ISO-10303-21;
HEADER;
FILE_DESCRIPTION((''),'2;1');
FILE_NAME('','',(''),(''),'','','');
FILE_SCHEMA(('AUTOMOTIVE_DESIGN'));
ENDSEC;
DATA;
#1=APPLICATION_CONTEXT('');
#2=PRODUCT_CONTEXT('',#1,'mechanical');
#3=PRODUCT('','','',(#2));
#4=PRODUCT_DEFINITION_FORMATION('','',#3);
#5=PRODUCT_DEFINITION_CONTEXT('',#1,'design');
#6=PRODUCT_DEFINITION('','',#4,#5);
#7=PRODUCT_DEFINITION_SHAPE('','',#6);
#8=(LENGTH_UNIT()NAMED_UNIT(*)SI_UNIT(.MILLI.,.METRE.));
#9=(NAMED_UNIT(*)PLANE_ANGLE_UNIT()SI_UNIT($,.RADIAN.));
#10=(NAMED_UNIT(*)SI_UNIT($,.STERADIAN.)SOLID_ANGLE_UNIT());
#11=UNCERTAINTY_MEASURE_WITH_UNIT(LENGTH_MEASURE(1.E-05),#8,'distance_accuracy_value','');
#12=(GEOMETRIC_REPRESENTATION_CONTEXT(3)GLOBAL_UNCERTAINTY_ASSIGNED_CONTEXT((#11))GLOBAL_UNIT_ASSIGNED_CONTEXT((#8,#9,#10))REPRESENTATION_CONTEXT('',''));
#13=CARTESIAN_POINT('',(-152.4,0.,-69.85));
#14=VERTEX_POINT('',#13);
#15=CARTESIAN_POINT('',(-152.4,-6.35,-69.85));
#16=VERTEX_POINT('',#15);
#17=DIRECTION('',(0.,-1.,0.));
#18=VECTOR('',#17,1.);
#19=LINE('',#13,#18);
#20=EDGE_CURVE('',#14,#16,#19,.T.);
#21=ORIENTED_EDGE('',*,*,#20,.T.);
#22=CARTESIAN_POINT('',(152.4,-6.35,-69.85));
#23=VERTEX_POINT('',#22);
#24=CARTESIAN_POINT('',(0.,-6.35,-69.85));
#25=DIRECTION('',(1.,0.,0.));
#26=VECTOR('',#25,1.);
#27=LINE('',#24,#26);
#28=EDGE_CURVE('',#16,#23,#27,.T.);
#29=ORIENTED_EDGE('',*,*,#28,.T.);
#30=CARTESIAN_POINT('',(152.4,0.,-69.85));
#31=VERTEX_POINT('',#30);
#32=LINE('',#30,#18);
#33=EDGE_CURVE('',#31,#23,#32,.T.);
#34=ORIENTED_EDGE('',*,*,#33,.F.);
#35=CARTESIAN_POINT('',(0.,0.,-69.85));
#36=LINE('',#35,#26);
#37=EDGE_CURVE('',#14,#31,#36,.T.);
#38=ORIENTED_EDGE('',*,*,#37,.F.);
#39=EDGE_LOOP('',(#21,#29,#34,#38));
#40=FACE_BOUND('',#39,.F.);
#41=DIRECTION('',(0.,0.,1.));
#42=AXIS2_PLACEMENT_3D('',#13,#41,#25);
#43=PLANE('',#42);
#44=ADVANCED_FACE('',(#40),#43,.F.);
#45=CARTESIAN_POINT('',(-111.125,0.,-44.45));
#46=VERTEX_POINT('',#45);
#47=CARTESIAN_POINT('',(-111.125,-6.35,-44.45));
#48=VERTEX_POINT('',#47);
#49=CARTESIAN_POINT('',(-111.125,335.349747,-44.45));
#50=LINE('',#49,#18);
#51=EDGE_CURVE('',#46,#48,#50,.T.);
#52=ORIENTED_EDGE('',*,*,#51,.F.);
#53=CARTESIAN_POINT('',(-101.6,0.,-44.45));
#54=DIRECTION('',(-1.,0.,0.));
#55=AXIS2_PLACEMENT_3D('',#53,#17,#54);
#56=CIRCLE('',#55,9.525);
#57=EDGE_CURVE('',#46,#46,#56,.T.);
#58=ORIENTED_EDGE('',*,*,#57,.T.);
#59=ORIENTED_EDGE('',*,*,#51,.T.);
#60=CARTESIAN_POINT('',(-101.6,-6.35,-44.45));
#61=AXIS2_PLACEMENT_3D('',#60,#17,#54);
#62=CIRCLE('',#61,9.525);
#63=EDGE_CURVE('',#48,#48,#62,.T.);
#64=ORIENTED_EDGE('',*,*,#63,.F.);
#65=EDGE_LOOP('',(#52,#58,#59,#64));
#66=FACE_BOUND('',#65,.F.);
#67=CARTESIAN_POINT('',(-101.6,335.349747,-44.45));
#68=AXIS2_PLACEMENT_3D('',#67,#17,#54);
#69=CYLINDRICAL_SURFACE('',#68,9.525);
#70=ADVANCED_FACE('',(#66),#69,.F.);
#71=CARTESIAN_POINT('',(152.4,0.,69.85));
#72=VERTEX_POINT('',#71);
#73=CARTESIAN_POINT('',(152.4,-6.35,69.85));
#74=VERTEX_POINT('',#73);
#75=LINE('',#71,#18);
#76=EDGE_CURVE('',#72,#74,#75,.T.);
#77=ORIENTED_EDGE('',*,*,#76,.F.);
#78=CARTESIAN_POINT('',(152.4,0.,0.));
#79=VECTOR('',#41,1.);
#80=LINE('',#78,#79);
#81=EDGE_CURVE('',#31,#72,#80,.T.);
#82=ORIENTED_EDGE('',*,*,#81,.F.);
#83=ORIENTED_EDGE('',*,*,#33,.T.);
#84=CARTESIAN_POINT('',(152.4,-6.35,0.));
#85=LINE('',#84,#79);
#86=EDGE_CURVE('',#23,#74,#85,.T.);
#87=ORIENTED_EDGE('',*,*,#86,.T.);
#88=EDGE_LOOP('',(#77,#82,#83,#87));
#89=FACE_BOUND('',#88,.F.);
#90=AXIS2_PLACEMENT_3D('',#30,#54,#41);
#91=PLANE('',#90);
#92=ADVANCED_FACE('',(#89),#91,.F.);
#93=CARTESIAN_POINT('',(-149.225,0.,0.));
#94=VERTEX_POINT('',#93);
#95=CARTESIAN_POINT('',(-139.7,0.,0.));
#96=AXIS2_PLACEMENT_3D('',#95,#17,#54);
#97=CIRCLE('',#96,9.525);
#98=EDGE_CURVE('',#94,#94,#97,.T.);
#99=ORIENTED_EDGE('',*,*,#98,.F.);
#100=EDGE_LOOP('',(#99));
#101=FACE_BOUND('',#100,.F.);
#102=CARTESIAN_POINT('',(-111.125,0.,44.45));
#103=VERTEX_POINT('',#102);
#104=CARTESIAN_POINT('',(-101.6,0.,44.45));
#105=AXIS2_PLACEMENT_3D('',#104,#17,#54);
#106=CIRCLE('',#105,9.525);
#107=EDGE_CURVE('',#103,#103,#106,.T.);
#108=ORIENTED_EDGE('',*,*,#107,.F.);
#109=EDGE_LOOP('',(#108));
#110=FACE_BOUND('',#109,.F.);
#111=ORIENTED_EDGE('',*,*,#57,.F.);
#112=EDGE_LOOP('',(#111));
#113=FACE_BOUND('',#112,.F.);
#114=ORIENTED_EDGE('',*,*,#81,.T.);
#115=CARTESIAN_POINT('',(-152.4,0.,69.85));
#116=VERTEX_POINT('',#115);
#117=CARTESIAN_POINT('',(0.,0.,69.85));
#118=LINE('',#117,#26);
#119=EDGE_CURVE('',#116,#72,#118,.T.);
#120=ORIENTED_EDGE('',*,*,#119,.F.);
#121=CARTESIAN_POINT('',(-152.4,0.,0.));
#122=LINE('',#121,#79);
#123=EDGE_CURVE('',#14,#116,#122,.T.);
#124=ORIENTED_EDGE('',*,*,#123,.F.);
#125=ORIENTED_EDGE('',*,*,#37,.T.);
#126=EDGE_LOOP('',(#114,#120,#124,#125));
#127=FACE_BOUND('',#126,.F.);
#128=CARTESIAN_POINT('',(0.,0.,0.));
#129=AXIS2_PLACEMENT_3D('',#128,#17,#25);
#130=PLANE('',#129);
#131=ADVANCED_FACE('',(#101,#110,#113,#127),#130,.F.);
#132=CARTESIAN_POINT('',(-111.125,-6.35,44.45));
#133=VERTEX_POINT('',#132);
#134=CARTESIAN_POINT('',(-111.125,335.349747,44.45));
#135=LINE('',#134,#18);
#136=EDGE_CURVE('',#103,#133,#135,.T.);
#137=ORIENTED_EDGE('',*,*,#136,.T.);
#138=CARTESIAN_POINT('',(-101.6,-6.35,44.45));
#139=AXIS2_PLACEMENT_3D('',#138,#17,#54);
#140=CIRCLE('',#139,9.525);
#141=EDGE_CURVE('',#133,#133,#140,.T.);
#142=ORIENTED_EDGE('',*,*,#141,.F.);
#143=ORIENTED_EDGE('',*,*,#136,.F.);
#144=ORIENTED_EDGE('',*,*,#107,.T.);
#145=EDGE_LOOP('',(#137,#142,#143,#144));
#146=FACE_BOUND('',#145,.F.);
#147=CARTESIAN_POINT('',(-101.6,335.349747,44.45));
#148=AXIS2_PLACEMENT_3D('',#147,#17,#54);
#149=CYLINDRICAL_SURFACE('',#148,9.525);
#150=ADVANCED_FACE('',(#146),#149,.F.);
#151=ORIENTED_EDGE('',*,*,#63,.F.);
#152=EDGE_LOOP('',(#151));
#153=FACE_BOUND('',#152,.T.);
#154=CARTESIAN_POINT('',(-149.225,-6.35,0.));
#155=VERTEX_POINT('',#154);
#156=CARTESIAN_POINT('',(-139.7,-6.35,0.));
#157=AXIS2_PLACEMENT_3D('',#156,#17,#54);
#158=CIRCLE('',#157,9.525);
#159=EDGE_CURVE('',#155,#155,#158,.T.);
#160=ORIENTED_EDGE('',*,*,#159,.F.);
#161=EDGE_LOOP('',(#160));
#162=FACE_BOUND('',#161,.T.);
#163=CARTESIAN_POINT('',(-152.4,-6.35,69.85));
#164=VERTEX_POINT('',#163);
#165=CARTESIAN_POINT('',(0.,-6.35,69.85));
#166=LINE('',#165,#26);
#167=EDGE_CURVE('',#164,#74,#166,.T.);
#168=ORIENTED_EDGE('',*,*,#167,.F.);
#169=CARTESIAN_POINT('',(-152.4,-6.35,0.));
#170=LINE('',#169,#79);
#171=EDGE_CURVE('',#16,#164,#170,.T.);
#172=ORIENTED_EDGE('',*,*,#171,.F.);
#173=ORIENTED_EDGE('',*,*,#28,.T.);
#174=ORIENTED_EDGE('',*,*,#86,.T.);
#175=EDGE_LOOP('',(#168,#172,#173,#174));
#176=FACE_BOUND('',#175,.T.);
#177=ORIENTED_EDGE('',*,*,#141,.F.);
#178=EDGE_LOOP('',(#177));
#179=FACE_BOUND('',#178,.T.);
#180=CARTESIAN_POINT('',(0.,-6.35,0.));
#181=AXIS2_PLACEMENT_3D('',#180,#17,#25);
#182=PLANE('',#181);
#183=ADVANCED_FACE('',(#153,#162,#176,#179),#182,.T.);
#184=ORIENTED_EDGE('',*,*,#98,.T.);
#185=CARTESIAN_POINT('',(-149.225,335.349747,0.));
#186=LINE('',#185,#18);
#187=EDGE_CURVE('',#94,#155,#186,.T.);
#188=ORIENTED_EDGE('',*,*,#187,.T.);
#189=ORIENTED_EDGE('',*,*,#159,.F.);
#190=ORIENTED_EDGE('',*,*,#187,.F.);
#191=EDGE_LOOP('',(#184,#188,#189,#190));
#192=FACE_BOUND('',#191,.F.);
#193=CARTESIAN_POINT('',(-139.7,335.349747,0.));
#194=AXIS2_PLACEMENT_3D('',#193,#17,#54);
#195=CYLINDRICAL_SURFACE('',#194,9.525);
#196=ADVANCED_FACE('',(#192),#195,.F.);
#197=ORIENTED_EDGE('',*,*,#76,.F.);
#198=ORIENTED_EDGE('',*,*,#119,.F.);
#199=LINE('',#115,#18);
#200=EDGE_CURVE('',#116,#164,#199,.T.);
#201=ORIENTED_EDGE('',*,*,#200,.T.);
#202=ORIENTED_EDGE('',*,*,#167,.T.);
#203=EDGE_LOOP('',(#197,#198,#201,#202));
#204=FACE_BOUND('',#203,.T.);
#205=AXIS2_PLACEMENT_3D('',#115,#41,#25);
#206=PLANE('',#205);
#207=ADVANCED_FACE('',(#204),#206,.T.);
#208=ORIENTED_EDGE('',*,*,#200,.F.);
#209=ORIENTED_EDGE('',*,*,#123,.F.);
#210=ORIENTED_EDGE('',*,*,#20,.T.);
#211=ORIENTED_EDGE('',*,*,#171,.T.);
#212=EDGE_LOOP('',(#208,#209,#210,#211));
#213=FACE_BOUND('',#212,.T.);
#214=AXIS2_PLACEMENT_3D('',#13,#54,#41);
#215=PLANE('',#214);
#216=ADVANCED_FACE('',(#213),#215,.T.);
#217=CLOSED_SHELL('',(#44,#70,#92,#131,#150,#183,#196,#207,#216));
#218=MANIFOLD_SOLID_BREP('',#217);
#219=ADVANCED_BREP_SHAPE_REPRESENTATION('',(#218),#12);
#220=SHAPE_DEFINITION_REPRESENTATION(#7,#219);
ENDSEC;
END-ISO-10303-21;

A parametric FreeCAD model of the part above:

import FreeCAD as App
import Part
import Sketcher
Q = App.Units.Quantity

doc = App.newDocument("Part")
body = doc.addObject("PartDesign::Body", "Body")

# Sketch on XZ plane
sketch1 = doc.addObject("Sketcher::SketchObject", "Sketch")
body.addObject(sketch1)
sketch1.AttachmentSupport = (doc.XZ_Plane, [""])
sketch1.MapMode = "FlatFace"
sketch1.addGeometry([
    Part.LineSegment(App.Vector(-152.4, 69.85, 0), App.Vector(-152.4, -69.85, 0)),
    Part.LineSegment(App.Vector(-152.4, -69.85, 0), App.Vector(152.4, -69.85, 0)),
    Part.LineSegment(App.Vector(152.4, -69.85, 0), App.Vector(152.4, 69.85, 0)),
    Part.LineSegment(App.Vector(152.4, 69.85, 0), App.Vector(-152.4, 69.85, 0)),
], False)
sketch1.addConstraint([
    Sketcher.Constraint("Coincident", 0, 2, 1, 1),
    Sketcher.Constraint("Coincident", 1, 2, 2, 1),
    Sketcher.Constraint("Coincident", 2, 2, 3, 1),
    Sketcher.Constraint("Coincident", 3, 2, 0, 1),
    Sketcher.Constraint("Vertical", 0),
    Sketcher.Constraint("Horizontal", 1),
    Sketcher.Constraint("Vertical", 2),
    Sketcher.Constraint("Horizontal", 3),
    Sketcher.Constraint("Symmetric", 0, 2, 2, 2, -1, 1),
    Sketcher.Constraint("DistanceX", 1, 1, 1, 2, Q("12 in")),
    Sketcher.Constraint("DistanceY", 0, 2, 0, 1, Q("5.5 in")),
])
pad1 = doc.addObject("PartDesign::Pad", "Pad")
body.addObject(pad1)
pad1.Profile = sketch1
pad1.Length = Q("0.25 in")

# Sketch on XZ plane
sketch2 = doc.addObject("Sketcher::SketchObject", "Sketch001")
body.addObject(sketch2)
sketch2.AttachmentSupport = (doc.XZ_Plane, [""])
sketch2.MapMode = "FlatFace"
sketch2.addGeometry([
    Part.Circle(App.Vector(-101.6, -44.45, 0), App.Vector(0, 0, 1), 9.525),
    Part.Circle(App.Vector(-139.7, 0, 0), App.Vector(0, 0, 1), 9.525),
    Part.Circle(App.Vector(-101.6, 44.45, 0), App.Vector(0, 0, 1), 9.525),
], False)
sketch2.addConstraint([
    Sketcher.Constraint("Equal", 0, 1),
    Sketcher.Constraint("Equal", 1, 2),
    Sketcher.Constraint("Symmetric", 0, 3, 2, 3, -1),
    Sketcher.Constraint("PointOnObject", 1, 3, -1),
    Sketcher.Constraint("Diameter", 0, Q("0.75 in")),
    Sketcher.Constraint("DistanceX", 0, 3, -1, 1, Q("4 in")),
    Sketcher.Constraint("DistanceX", 1, 3, -1, 1, Q("5.5 in")),
    Sketcher.Constraint("DistanceY", 0, 3, 2, 3, Q("3.5 in")),
])
doc.recompute()
hole = doc.addObject("PartDesign::Hole", "Hole")
body.addObject(hole)
hole.Profile = sketch2
hole.ThreadType = "None"
hole.Diameter = Q("0.75 in")
hole.DepthType = "ThroughAll"
hole.Reversed = True

doc.recompute()
